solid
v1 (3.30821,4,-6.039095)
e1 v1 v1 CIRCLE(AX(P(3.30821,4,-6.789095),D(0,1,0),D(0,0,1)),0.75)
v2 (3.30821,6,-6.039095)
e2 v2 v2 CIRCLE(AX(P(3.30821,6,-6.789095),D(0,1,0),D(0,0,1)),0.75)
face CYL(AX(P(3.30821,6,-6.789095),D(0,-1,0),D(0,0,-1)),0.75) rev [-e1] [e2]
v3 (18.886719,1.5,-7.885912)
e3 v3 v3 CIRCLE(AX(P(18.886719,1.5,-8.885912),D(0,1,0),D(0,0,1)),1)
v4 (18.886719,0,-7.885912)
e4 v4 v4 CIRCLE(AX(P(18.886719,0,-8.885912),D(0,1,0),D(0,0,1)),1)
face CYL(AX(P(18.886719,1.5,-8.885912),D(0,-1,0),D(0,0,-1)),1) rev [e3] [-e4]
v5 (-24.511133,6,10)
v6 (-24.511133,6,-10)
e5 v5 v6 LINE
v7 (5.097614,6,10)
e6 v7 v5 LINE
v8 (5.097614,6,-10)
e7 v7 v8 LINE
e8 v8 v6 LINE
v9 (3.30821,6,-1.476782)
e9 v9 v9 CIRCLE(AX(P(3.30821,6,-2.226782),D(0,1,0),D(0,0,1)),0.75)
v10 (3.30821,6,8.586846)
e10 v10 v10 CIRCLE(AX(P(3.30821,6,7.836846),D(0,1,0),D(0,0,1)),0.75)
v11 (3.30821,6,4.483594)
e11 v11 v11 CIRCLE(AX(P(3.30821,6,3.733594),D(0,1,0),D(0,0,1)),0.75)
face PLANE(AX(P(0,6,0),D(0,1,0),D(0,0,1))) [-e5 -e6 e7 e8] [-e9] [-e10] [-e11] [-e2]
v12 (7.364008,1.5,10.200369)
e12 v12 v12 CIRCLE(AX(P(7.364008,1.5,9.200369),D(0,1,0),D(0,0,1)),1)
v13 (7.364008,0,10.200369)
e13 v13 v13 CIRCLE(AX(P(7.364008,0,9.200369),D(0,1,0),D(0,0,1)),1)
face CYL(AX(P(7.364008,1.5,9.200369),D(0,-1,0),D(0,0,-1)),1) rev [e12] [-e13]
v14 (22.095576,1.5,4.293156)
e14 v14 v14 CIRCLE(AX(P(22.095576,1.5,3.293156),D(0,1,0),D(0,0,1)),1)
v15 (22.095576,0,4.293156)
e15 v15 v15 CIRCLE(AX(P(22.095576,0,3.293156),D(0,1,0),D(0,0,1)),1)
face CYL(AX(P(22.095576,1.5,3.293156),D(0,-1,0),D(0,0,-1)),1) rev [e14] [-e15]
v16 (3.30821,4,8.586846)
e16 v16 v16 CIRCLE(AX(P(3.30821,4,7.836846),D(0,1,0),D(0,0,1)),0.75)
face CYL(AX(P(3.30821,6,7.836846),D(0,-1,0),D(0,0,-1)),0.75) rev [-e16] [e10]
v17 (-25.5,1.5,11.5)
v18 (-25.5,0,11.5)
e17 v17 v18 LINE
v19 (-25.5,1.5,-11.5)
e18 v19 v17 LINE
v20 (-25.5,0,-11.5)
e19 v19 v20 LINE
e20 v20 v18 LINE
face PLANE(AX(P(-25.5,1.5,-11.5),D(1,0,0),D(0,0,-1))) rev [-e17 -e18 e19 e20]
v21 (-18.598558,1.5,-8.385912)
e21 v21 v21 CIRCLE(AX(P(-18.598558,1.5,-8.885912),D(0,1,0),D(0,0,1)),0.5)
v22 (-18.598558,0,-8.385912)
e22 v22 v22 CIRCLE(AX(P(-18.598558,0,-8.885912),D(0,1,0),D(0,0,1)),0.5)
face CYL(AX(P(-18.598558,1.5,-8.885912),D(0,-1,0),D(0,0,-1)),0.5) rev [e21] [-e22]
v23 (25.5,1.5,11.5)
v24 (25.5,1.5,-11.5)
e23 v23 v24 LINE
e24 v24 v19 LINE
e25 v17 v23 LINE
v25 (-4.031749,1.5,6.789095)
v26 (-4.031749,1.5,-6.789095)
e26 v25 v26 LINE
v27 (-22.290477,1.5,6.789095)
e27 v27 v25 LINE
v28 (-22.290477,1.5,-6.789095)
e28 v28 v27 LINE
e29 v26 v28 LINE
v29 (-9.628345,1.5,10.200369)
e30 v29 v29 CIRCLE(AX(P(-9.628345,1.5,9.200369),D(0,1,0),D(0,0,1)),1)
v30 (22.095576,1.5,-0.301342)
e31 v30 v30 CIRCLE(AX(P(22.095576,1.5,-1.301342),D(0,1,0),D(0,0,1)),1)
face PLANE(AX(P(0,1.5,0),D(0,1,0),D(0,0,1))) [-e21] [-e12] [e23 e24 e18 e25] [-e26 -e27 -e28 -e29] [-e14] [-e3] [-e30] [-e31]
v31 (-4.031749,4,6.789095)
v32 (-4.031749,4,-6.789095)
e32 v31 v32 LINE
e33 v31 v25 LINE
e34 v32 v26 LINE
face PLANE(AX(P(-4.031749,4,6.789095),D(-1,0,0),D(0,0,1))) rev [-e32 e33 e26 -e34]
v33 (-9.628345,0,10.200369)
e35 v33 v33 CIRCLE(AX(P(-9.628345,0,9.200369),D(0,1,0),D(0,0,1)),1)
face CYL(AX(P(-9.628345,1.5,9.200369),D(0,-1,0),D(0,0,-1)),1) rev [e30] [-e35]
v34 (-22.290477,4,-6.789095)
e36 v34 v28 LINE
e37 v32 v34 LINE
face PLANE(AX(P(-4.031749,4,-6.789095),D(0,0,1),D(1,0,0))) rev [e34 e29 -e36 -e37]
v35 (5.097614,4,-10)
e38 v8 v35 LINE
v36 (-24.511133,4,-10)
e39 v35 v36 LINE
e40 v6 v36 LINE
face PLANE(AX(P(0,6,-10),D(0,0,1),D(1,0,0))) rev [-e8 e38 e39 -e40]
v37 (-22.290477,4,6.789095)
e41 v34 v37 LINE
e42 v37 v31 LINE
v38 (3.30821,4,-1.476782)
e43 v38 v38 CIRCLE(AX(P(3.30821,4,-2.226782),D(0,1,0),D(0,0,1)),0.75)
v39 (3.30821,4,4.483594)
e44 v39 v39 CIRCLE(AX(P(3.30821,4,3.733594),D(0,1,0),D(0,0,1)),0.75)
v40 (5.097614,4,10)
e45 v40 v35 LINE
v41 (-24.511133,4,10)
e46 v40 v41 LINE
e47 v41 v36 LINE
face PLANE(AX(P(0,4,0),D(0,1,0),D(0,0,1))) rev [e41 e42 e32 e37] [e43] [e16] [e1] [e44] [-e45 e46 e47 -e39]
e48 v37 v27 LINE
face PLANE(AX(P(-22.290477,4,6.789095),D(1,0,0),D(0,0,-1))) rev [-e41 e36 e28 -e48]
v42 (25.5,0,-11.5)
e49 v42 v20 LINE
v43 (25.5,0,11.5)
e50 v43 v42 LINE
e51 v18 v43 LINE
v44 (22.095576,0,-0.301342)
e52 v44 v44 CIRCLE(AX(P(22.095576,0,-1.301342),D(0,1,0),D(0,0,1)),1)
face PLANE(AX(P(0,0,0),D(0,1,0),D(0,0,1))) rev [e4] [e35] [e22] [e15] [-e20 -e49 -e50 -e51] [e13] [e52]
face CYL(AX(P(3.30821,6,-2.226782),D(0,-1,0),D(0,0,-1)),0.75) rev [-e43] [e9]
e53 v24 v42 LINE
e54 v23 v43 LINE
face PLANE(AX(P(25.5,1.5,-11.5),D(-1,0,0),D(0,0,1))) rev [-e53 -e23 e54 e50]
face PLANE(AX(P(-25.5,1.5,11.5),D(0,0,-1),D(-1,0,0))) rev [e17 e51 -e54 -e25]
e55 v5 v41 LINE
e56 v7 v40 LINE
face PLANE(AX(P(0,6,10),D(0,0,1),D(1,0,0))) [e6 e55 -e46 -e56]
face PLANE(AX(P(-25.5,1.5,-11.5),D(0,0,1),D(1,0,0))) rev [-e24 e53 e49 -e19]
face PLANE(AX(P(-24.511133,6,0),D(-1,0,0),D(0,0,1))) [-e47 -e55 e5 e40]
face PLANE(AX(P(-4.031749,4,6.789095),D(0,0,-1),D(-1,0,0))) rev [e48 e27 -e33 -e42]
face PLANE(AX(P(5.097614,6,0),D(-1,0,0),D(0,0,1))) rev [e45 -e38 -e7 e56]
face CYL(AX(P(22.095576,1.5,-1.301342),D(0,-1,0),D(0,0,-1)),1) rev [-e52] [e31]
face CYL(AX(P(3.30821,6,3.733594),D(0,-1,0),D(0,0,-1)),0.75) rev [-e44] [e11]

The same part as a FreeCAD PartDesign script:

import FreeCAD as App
import Part
import Sketcher

V = App.Vector
Q = App.Units.Quantity

doc = App.newDocument("Part")
params = doc.addObject("Spreadsheet::Sheet", "Params")
for row, (alias, value) in enumerate([
    ("sketch1_diameter", "2 mm"),
    ("sketch1_diameter2", "1 mm"),
    ("sketch1_width", "51 mm"),
    ("sketch1_height", "23 mm"),
    ("pad1_length", "1.5 mm"),
    ("pad2_length", "2.5 mm"),
    ("sketch3_diameter", "1.5 mm"),
    ("sketch3_height", "20 mm"),
    ("pad3_length", "2 mm"),
], start=1):
    params.set(f"A{row}", alias)
    params.set(f"B{row}", "=" + value)
    params.setAlias(f"B{row}", alias)

body = doc.addObject("PartDesign::Body", "Body")

# Sketch on XZ plane
sketch1 = body.newObject("Sketcher::SketchObject", "Sketch")
sketch1.AttachmentSupport = (doc.getObject("XZ_Plane"), [""])
sketch1.MapMode = "FlatFace"
sketch1.addGeometry([
    Part.LineSegment(V(-25.5, -11.5, 0), V(-25.5, 11.5, 0)),  # 0
    Part.LineSegment(V(-25.5, 11.5, 0), V(25.5, 11.5, 0)),  # 1
    Part.LineSegment(V(25.5, 11.5, 0), V(25.5, -11.5, 0)),  # 2
    Part.LineSegment(V(25.5, -11.5, 0), V(-25.5, -11.5, 0)),  # 3
    Part.Circle(V(-9.6, 9.2, 0), V(0, 0, 1), 1),  # 4
    Part.Circle(V(7.4, 9.2, 0), V(0, 0, 1), 1),  # 5
    Part.Circle(V(22.1, 3.3, 0), V(0, 0, 1), 1),  # 6
    Part.Circle(V(-18.6, -8.9, 0), V(0, 0, 1), 0.5),  # 7
    Part.Circle(V(22.1, -1.3, 0), V(0, 0, 1), 1),  # 8
    Part.Circle(V(18.9, -8.9, 0), V(0, 0, 1), 1),  # 9
], False)
sketch1.addConstraint([
    Sketcher.Constraint("Coincident", 0, 2, 1, 1),
    Sketcher.Constraint("Coincident", 1, 2, 2, 1),
    Sketcher.Constraint("Coincident", 2, 2, 3, 1),
    Sketcher.Constraint("Coincident", 3, 2, 0, 1),
    Sketcher.Constraint("Vertical", 0),
    Sketcher.Constraint("Horizontal", 1),
    Sketcher.Constraint("Vertical", 2),
    Sketcher.Constraint("Horizontal", 3),
    Sketcher.Constraint("Equal", 4, 5),
    Sketcher.Constraint("Equal", 5, 6),
    Sketcher.Constraint("Equal", 6, 8),
    Sketcher.Constraint("Equal", 8, 9),
    Sketcher.Constraint("Symmetric", 0, 2, 2, 2, -1, 1),
    Sketcher.Constraint("Horizontal", 4, 3, 5, 3),
    Sketcher.Constraint("Horizontal", 7, 3, 9, 3),
    Sketcher.Constraint("Vertical", 6, 3, 8, 3),
    Sketcher.Constraint("Diameter", 4, Q("2 mm")),
    Sketcher.Constraint("Diameter", 7, Q("1 mm")),
    Sketcher.Constraint("DistanceX", 1, 1, 1, 2, Q("51 mm")),
    Sketcher.Constraint("DistanceY", 0, 1, 0, 2, Q("23 mm")),
    Sketcher.Constraint("DistanceY", 8, 3, 6, 3, Q("4.594499 mm")),
    Sketcher.Constraint("DistanceY", -1, 1, 4, 3, Q("9.200369 mm")),
    Sketcher.Constraint("DistanceX", -1, 1, 9, 3, Q("18.886719 mm")),
    Sketcher.Constraint("DistanceX", 4, 3, 6, 3, Q("31.723921 mm")),
    Sketcher.Constraint("DistanceY", 7, 3, 4, 3, Q("18.086281 mm")),
    Sketcher.Constraint("DistanceY", 7, 3, 6, 3, Q("12.179069 mm")),
    Sketcher.Constraint("DistanceX", 5, 3, 9, 3, Q("11.522712 mm")),
    Sketcher.Constraint("DistanceX", 4, 3, -1, 1, Q("9.628345 mm")),
    Sketcher.Constraint("DistanceX", 7, 3, -1, 1, Q("18.598558 mm")),
])
sketch1.setExpression("Constraints[16]", "Params.sketch1_diameter")
sketch1.setExpression("Constraints[17]", "Params.sketch1_diameter2")
sketch1.setExpression("Constraints[18]", "Params.sketch1_width")
sketch1.setExpression("Constraints[19]", "Params.sketch1_height")
pad1 = body.newObject("PartDesign::Pad", "Pad")
pad1.Profile = sketch1
pad1.setExpression("Length", "Params.pad1_length")
pad1.Reversed = True

# Sketch on XZ plane
sketch2 = body.newObject("Sketcher::SketchObject", "Sketch001")
sketch2.AttachmentSupport = (doc.getObject("XZ_Plane"), [""])
sketch2.MapMode = "FlatFace"
sketch2.AttachmentOffset = App.Placement(V(0, 0, -1.5), App.Rotation())
sketch2.addGeometry([
    Part.LineSegment(V(-22, -7, 0), V(-22, 7, 0)),
    Part.LineSegment(V(-22, 7, 0), V(-4, 7, 0)),
    Part.LineSegment(V(-4, 7, 0), V(-4, -7, 0)),
    Part.LineSegment(V(-4, -7, 0), V(-22, -7, 0)),
], False)
sketch2.addConstraint([
    Sketcher.Constraint("Coincident", 0, 2, 1, 1),
    Sketcher.Constraint("Coincident", 1, 2, 2, 1),
    Sketcher.Constraint("Coincident", 2, 2, 3, 1),
    Sketcher.Constraint("Coincident", 3, 2, 0, 1),
    Sketcher.Constraint("Vertical", 0),
    Sketcher.Constraint("Horizontal", 1),
    Sketcher.Constraint("Vertical", 2),
    Sketcher.Constraint("Horizontal", 3),
    Sketcher.Constraint("DistanceY", 0, 1, 0, 2, Q("13.578191 mm")),
    Sketcher.Constraint("DistanceX", 1, 1, 1, 2, Q("18.258727 mm")),
    Sketcher.Constraint("DistanceX", 1, 2, -1, 1, Q("4.031749 mm")),
    Sketcher.Constraint("DistanceY", -1, 1, 0, 2, Q("6.789095 mm")),
])
pad2 = body.newObject("PartDesign::Pad", "Pad001")
pad2.Profile = sketch2
pad2.setExpression("Length", "Params.pad2_length")
pad2.Reversed = True

# Sketch on XZ plane
sketch3 = body.newObject("Sketcher::SketchObject", "Sketch002")
sketch3.AttachmentSupport = (doc.getObject("XZ_Plane"), [""])
sketch3.MapMode = "FlatFace"
sketch3.AttachmentOffset = App.Placement(V(0, 0, -4), App.Rotation())
sketch3.addGeometry([
    Part.LineSegment(V(-24.5, -10, 0), V(-24.5, 10, 0)),  # 0
    Part.LineSegment(V(-24.5, 10, 0), V(5.1, 10, 0)),  # 1
    Part.LineSegment(V(5.1, 10, 0), V(5.1, -10, 0)),  # 2
    Part.LineSegment(V(5.1, -10, 0), V(-24.5, -10, 0)),  # 3
    Part.Circle(V(3.3, 7.8, 0), V(0, 0, 1), 0.8),  # 4
    Part.Circle(V(3.3, 3.7, 0), V(0, 0, 1), 0.8),  # 5
    Part.Circle(V(3.3, -2.2, 0), V(0, 0, 1), 0.8),  # 6
    Part.Circle(V(3.3, -6.8, 0), V(0, 0, 1), 0.8),  # 7
], False)
sketch3.addConstraint([
    Sketcher.Constraint("Coincident", 0, 2, 1, 1),
    Sketcher.Constraint("Coincident", 1, 2, 2, 1),
    Sketcher.Constraint("Coincident", 2, 2, 3, 1),
    Sketcher.Constraint("Coincident", 3, 2, 0, 1),
    Sketcher.Constraint("Vertical", 0),
    Sketcher.Constraint("Horizontal", 1),
    Sketcher.Constraint("Vertical", 2),
    Sketcher.Constraint("Horizontal", 3),
    Sketcher.Constraint("Equal", 4, 5),
    Sketcher.Constraint("Equal", 5, 6),
    Sketcher.Constraint("Equal", 6, 7),
    Sketcher.Constraint("Vertical", 4, 3, 5, 3),
    Sketcher.Constraint("Vertical", 5, 3, 6, 3),
    Sketcher.Constraint("Vertical", 6, 3, 7, 3),
    Sketcher.Constraint("Diameter", 4, Q("1.5 mm")),
    Sketcher.Constraint("DistanceY", 0, 1, 0, 2, Q("20 mm")),
    Sketcher.Constraint("DistanceY", -1, 1, 0, 2, Q("10 mm")),
    Sketcher.Constraint("DistanceX", 1, 1, 1, 2, Q("29.608747 mm")),
    Sketcher.Constraint("DistanceX", -1, 1, 4, 3, Q("3.30821 mm")),
    Sketcher.Constraint("DistanceY", 6, 3, -1, 1, Q("2.226782 mm")),
    Sketcher.Constraint("DistanceY", 7, 3, 5, 3, Q("10.522689 mm")),
    Sketcher.Constraint("DistanceY", 7, 3, 4, 3, Q("14.625941 mm")),
    Sketcher.Constraint("DistanceY", -1, 1, 4, 3, Q("7.836846 mm")),
    Sketcher.Constraint("DistanceX", 0, 2, -1, 1, Q("24.511133 mm")),
])
sketch3.setExpression("Constraints[14]", "Params.sketch3_diameter")
sketch3.setExpression("Constraints[15]", "Params.sketch3_height")
pad3 = body.newObject("PartDesign::Pad", "Pad002")
pad3.Profile = sketch3
pad3.setExpression("Length", "Params.pad3_length")
pad3.Reversed = True

doc.recompute()
